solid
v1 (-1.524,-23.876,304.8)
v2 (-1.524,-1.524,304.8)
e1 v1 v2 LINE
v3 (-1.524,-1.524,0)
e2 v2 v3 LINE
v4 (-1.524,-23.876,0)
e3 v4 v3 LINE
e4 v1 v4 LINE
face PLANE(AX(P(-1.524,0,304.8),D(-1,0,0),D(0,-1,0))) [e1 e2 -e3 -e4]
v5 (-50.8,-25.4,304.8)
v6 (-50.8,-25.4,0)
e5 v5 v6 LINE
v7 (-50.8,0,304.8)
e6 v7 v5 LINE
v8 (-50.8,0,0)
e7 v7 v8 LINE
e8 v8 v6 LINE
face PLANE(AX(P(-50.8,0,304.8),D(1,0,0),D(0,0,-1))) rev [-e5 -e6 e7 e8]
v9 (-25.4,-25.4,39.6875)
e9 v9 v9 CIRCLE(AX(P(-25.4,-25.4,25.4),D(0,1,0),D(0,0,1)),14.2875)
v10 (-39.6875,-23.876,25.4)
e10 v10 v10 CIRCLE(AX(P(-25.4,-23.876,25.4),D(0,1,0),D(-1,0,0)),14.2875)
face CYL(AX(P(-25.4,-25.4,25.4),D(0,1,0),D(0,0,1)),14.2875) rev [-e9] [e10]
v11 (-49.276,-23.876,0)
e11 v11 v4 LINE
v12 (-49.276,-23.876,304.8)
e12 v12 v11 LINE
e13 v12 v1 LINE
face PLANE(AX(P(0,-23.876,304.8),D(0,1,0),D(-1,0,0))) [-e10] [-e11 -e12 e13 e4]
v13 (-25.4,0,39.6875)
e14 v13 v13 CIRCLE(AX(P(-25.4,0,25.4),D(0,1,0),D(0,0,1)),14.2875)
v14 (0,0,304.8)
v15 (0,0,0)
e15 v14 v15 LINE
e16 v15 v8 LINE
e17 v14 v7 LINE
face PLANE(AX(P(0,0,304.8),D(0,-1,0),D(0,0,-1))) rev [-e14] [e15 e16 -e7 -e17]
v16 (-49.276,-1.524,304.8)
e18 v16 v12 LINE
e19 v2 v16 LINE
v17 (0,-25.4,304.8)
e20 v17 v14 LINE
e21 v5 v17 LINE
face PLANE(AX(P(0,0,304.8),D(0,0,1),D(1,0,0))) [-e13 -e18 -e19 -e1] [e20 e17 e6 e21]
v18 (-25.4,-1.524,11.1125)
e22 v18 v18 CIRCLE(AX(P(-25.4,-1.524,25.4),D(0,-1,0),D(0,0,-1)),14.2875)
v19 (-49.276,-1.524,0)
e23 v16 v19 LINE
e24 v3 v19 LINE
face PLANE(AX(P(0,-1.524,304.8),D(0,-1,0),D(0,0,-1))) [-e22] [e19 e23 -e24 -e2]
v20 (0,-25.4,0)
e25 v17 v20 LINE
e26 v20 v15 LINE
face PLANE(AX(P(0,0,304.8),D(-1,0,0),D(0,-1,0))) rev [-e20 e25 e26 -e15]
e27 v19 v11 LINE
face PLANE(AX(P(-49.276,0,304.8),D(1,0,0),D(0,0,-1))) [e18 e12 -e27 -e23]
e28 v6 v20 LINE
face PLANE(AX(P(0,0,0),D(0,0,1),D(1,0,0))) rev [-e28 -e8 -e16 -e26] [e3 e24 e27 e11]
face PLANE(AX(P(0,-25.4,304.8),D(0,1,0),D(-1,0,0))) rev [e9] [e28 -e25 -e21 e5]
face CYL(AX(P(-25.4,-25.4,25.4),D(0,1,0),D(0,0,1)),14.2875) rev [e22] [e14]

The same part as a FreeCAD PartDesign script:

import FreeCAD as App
import Part
import Sketcher

V = App.Vector
Q = App.Units.Quantity

doc = App.newDocument("Part")
body = doc.addObject("PartDesign::Body", "Body")

# Sketch on XY plane
sketch1 = body.newObject("Sketcher::SketchObject", "Sketch")
sketch1.AttachmentSupport = (doc.getObject("XY_Plane"), [""])
sketch1.MapMode = "FlatFace"
sketch1.addGeometry([
    Part.LineSegment(V(-51, 0, 0), V(-51, -25, 0)),  # 0
    Part.LineSegment(V(-51, -25, 0), V(0, -25, 0)),  # 1
    Part.LineSegment(V(0, -25, 0), V(0, 0, 0)),  # 2
    Part.LineSegment(V(0, 0, 0), V(-51, 0, 0)),  # 3
    Part.LineSegment(V(-2, -24, 0), V(-49, -24, 0)),  # 4
    Part.LineSegment(V(-49, -24, 0), V(-49, -2, 0)),  # 5
    Part.LineSegment(V(-49, -2, 0), V(-2, -2, 0)),  # 6
    Part.LineSegment(V(-2, -2, 0), V(-2, -24, 0)),  # 7
], False)
sketch1.addConstraint([
    Sketcher.Constraint("Coincident", 0, 2, 1, 1),
    Sketcher.Constraint("Coincident", 1, 2, 2, 1),
    Sketcher.Constraint("Coincident", 2, 2, 3, 1),
    Sketcher.Constraint("Coincident", 3, 2, 0, 1),
    Sketcher.Constraint("Coincident", 4, 2, 5, 1),
    Sketcher.Constraint("Coincident", 5, 2, 6, 1),
    Sketcher.Constraint("Coincident", 6, 2, 7, 1),
    Sketcher.Constraint("Coincident", 7, 2, 4, 1),
    Sketcher.Constraint("Vertical", 0),
    Sketcher.Constraint("Horizontal", 1),
    Sketcher.Constraint("Vertical", 2),
    Sketcher.Constraint("Horizontal", 3),
    Sketcher.Constraint("Horizontal", 4),
    Sketcher.Constraint("Vertical", 5),
    Sketcher.Constraint("Horizontal", 6),
    Sketcher.Constraint("Vertical", 7),
    Sketcher.Constraint("Coincident", 2, 2, -1, 1),
    Sketcher.Constraint("DistanceX", 1, 1, 1, 2, Q("2 in")),
    Sketcher.Constraint("DistanceY", 0, 2, 0, 1, Q("1 in")),
    Sketcher.Constraint("DistanceX", 4, 2, 4, 1, Q("1.88 in")),
    Sketcher.Constraint("DistanceY", 5, 1, 5, 2, Q("0.88 in")),
    Sketcher.Constraint("DistanceX", 4, 2, -1, 1, Q("1.94 in")),
    Sketcher.Constraint("DistanceY", 4, 2, -1, 1, Q("0.94 in")),
])
pad1 = body.newObject("PartDesign::Pad", "Pad")
pad1.Profile = sketch1
pad1.Length = Q("12 in")

# Sketch on XZ plane
sketch2 = body.newObject("Sketcher::SketchObject", "Sketch001")
sketch2.AttachmentSupport = (doc.getObject("XZ_Plane"), [""])
sketch2.MapMode = "FlatFace"
sketch2.addGeometry(Part.Circle(V(-25, 25, 0), V(0, 0, 1), 14), False)
sketch2.addConstraint([
    Sketcher.Constraint("Diameter", 0, Q("1.125 in")),
    Sketcher.Constraint("DistanceX", 0, 3, -1, 1, Q("1 in")),
    Sketcher.Constraint("DistanceY", -1, 1, 0, 3, Q("1 in")),
])
pocket1 = body.newObject("PartDesign::Pocket", "Pocket")
pocket1.Profile = sketch2
pocket1.Length = Q("1 in")
pocket1.Reversed = True

doc.recompute()
